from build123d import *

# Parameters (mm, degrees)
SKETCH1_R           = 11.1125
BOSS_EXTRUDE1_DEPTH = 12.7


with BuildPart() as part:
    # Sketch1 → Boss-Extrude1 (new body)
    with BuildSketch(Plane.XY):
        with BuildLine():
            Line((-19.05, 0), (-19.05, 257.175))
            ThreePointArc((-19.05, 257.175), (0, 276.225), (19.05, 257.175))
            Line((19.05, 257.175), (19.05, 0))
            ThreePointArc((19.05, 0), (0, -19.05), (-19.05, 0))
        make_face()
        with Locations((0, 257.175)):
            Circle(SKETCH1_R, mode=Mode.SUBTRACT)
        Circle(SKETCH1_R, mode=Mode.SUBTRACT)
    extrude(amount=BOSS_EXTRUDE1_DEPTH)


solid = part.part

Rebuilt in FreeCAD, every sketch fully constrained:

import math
import FreeCAD as App
import Part
import Sketcher
from FreeCAD import Vector
Q = App.Units.Quantity

doc = App.newDocument("Part")
body = doc.addObject("PartDesign::Body", "Body")

# Sketch on XY plane
sketch1 = body.newObject("Sketcher::SketchObject", "Sketch")
sketch1.AttachmentSupport = (doc.getObject("XY_Plane"), [""])
sketch1.MapMode = "FlatFace"
sketch1.addGeometry(Part.LineSegment(Vector(-19.05, 257.175, 0), Vector(-19.05, 0, 0)), False)
sketch1.addGeometry(Part.ArcOfCircle(Part.Circle(Vector(0, 0, 0), Vector(0, 0, 1), 19.05), math.radians(180), math.radians(360)), False)
sketch1.addGeometry(Part.LineSegment(Vector(19.05, 0, 0), Vector(19.05, 257.175, 0)), False)
sketch1.addGeometry(Part.ArcOfCircle(Part.Circle(Vector(0, 257.175, 0), Vector(0, 0, 1), 19.05), math.radians(0), math.radians(180)), False)
sketch1.addGeometry(Part.Circle(Vector(0, 0, 0), Vector(0, 0, 1), 11.1125), False)
sketch1.addGeometry(Part.Circle(Vector(0, 257.175, 0), Vector(0, 0, 1), 11.1125), False)
sketch1.addConstraint(Sketcher.Constraint("Tangent", 0, 2, 1, 1))
sketch1.addConstraint(Sketcher.Constraint("Tangent", 1, 2, 2, 1))
sketch1.addConstraint(Sketcher.Constraint("Tangent", 2, 2, 3, 1))
sketch1.addConstraint(Sketcher.Constraint("Tangent", 3, 2, 0, 1))
sketch1.addConstraint(Sketcher.Constraint("Vertical", 0))
sketch1.addConstraint(Sketcher.Constraint("Vertical", 2))
sketch1.addConstraint(Sketcher.Constraint("Coincident", 1, 3, -1, 1))
sketch1.addConstraint(Sketcher.Constraint("Coincident", 4, 3, -1, 1))
sketch1.addConstraint(Sketcher.Constraint("Coincident", 5, 3, 3, 3))
sketch1.addConstraint(Sketcher.Constraint("Equal", 4, 5))
sketch1.addConstraint(Sketcher.Constraint("Radius", 1, Q("0.75 in")))
sketch1.addConstraint(Sketcher.Constraint("Diameter", 4, Q("0.875 in")))
sketch1.addConstraint(Sketcher.Constraint("DistanceY", 0, 2, 0, 1, Q("10.125 in")))
pad1 = body.newObject("PartDesign::Pad", "Pad")
pad1.Profile = sketch1
pad1.Length = Q("0.5 in")

doc.recompute()
